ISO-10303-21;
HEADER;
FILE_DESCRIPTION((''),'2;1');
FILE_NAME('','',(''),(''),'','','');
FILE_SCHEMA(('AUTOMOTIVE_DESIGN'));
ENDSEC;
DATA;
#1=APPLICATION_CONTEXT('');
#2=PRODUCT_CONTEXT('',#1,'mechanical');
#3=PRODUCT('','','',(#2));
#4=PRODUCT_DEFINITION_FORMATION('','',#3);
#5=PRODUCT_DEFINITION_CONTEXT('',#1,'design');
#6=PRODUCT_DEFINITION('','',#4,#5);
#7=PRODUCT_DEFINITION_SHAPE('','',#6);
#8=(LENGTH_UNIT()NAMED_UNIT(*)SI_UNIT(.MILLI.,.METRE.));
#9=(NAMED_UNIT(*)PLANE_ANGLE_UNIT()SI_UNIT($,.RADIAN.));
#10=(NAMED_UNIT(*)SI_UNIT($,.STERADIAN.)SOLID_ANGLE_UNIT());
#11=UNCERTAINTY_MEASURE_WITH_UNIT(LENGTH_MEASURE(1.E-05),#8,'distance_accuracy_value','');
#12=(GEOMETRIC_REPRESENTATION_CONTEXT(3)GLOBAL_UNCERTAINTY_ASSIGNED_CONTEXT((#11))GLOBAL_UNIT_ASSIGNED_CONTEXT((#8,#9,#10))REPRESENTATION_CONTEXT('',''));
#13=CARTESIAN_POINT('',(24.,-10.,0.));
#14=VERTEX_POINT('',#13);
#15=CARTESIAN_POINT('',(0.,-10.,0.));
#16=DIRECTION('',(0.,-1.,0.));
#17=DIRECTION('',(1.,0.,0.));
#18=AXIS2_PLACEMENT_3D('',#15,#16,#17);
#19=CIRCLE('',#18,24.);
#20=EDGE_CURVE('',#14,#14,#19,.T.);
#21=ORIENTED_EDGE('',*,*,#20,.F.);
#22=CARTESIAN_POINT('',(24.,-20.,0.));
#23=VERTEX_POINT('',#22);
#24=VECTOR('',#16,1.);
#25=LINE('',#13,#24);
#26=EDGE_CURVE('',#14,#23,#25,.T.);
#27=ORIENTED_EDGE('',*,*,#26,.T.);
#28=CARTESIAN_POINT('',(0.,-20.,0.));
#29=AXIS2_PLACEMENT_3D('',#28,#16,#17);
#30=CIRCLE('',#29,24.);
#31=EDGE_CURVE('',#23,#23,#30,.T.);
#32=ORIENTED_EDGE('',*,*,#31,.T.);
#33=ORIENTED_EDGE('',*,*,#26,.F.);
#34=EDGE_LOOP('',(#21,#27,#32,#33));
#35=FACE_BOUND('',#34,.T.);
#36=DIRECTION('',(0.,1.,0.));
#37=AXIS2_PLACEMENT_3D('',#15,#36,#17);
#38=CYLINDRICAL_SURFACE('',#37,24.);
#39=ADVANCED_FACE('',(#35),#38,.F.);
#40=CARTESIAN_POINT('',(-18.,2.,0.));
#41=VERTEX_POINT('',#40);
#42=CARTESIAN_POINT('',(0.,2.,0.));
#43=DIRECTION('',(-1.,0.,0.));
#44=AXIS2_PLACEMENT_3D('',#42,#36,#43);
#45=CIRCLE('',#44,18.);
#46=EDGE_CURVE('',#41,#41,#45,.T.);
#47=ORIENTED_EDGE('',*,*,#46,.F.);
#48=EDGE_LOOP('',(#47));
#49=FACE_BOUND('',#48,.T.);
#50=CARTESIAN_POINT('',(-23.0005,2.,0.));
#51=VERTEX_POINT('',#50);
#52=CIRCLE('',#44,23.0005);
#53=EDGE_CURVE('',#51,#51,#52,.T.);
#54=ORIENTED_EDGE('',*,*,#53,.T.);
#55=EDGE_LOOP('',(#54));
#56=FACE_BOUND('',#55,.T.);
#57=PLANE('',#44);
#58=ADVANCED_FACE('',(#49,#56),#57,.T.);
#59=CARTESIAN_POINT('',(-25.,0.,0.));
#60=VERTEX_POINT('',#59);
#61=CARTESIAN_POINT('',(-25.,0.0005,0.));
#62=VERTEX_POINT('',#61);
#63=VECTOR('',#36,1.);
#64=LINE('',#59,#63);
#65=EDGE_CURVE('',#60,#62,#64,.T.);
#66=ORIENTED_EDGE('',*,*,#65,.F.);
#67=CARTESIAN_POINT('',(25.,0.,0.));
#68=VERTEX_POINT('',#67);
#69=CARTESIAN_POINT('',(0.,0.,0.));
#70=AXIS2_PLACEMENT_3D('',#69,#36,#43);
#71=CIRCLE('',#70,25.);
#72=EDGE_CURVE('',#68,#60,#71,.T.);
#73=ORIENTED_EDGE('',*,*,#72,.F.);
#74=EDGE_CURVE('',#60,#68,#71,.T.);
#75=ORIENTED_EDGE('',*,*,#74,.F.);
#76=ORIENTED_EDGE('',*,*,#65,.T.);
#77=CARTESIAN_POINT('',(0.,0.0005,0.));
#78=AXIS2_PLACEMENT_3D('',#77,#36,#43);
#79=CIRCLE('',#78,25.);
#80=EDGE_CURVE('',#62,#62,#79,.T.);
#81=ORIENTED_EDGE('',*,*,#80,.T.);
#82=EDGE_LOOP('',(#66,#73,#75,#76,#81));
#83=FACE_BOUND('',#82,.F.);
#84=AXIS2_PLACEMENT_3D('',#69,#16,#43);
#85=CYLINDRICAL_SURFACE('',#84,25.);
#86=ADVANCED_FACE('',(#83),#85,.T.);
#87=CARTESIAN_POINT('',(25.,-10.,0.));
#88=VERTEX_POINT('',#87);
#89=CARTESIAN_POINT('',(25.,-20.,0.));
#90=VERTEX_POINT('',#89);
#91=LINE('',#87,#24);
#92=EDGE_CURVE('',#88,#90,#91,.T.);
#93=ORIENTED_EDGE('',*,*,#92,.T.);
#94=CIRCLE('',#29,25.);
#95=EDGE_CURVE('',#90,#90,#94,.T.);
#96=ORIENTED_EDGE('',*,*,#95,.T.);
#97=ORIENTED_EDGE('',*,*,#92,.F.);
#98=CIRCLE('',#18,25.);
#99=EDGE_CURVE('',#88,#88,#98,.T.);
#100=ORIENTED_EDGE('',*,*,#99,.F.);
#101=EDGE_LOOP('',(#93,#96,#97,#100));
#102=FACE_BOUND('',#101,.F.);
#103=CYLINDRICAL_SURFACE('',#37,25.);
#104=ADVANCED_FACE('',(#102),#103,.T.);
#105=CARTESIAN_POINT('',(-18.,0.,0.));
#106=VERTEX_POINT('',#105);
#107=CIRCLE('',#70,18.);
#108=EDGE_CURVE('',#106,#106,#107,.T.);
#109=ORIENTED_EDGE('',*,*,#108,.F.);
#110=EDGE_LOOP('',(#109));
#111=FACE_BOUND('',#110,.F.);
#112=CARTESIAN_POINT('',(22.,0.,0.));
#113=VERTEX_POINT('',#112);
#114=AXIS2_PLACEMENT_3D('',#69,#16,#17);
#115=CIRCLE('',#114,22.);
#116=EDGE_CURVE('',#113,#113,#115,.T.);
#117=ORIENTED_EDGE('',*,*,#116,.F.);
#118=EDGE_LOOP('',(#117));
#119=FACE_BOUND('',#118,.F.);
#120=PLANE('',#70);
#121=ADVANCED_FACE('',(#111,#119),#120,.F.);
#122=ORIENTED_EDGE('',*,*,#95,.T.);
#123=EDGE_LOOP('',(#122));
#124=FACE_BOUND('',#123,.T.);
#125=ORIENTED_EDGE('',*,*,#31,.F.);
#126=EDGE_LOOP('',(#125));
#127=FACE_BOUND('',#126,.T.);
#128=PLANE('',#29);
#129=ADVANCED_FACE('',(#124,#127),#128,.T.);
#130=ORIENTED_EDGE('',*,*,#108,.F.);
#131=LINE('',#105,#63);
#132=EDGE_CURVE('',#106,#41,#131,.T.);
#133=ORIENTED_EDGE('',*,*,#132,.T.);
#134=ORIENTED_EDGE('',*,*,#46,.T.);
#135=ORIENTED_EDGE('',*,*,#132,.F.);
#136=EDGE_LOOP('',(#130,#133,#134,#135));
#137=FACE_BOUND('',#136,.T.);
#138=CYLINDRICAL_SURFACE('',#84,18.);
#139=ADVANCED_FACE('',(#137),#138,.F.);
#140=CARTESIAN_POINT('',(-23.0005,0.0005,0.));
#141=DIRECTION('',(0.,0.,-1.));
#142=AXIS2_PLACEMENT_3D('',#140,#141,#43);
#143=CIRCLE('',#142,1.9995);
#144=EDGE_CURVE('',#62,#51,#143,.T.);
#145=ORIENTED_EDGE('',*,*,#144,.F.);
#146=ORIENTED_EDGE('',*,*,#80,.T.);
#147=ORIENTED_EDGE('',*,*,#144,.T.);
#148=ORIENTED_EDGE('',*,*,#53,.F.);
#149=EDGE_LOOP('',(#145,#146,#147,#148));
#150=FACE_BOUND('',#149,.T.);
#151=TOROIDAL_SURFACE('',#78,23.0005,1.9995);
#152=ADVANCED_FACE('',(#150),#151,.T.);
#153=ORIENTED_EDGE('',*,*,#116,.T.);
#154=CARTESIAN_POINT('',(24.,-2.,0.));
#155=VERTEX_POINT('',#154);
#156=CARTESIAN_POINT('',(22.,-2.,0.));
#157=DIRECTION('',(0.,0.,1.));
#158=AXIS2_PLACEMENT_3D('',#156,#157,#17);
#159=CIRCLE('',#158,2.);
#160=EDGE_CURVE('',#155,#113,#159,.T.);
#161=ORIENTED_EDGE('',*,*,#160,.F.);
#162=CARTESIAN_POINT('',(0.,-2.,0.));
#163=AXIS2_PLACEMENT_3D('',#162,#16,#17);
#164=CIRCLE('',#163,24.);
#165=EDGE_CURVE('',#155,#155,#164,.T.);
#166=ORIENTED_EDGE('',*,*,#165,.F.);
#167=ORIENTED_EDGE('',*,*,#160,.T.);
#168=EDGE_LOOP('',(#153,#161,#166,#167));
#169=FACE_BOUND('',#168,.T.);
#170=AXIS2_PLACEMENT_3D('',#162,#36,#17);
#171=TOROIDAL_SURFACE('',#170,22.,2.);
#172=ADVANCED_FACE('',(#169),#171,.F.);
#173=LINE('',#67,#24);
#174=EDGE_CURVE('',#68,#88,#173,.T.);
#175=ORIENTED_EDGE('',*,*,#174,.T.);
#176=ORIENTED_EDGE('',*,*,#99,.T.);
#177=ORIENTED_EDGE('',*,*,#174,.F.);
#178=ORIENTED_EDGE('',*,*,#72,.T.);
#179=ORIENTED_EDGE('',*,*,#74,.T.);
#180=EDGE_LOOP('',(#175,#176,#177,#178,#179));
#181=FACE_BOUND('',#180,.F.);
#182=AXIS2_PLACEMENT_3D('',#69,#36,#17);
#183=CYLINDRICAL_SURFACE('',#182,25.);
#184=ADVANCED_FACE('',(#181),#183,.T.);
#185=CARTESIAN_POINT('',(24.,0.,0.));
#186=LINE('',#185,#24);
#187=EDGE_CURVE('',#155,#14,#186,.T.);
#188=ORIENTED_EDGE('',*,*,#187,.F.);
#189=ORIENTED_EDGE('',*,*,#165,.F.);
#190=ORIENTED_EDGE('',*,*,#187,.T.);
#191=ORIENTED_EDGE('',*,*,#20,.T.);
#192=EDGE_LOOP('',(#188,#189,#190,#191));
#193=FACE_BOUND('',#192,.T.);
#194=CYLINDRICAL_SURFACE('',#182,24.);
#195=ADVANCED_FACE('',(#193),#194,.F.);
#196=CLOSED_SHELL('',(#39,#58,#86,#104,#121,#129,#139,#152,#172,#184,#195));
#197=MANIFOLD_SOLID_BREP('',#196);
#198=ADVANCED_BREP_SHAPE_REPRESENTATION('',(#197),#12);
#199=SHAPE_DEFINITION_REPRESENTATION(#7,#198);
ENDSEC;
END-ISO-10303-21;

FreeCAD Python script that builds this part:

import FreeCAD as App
import Part
import Sketcher

V = App.Vector
Q = App.Units.Quantity


def edges_at(feature, points):
    """Names of the edges that pass closest to the given points."""
    edges = feature.Shape.Edges
    near = lambda p: min(range(len(edges)), key=lambda i: edges[i].distToShape(Part.Vertex(*p))[0])
    return sorted({f"Edge{near(p) + 1}" for p in points})

doc = App.newDocument("Part")
body = doc.addObject("PartDesign::Body", "Body")

sketch1 = doc.addObject("Sketcher::SketchObject", "Sketch")
body.addObject(sketch1)
sketch1.AttachmentSupport = (doc.XZ_Plane, [""])
sketch1.MapMode = "FlatFace"
sketch1.addGeometry(Part.Circle(V(0, 0, 0), V(0, 0, 1), 25), False)
sketch1.addGeometry(Part.Circle(V(0, 0, 0), V(0, 0, 1), 18), False)
sketch1.addConstraint(Sketcher.Constraint("Coincident", 0, 3, -1, 1))
sketch1.addConstraint(Sketcher.Constraint("Coincident", 1, 3, -1, 1))
sketch1.addConstraint(Sketcher.Constraint("Diameter", 0, Q("50 mm")))
sketch1.addConstraint(Sketcher.Constraint("Diameter", 1, Q("36 mm")))
pad1 = doc.addObject("PartDesign::Pad", "Pad")
body.addObject(pad1)
pad1.Profile = sketch1
pad1.Length = 2
pad1.Reversed = True

sketch2 = doc.addObject("Sketcher::SketchObject", "Sketch001")
body.addObject(sketch2)
sketch2.AttachmentSupport = (doc.XZ_Plane, [""])
sketch2.MapMode = "FlatFace"
sketch2.addGeometry(Part.Circle(V(0, 0, 0), V(0, 0, 1), 25), False)
sketch2.addGeometry(Part.Circle(V(0, 0, 0), V(0, 0, 1), 24), False)
sketch2.addConstraint(Sketcher.Constraint("Coincident", 0, 3, -1, 1))
sketch2.addConstraint(Sketcher.Constraint("Coincident", 1, 3, -1, 1))
sketch2.addConstraint(Sketcher.Constraint("Diameter", 1, Q("48 mm")))
sketch2.addConstraint(Sketcher.Constraint("Diameter", 0, Q("50 mm")))
pad2 = doc.addObject("PartDesign::Pad", "Pad001")
body.addObject(pad2)
pad2.Profile = sketch2
pad2.Length = 10
doc.recompute()

fillet = doc.addObject("PartDesign::Fillet", "Fillet")
body.addObject(fillet)
fillet.Base = (pad2, edges_at(pad2, [(-24, 0, 0)]))
fillet.Radius = 2
doc.recompute()

fillet2 = doc.addObject("PartDesign::Fillet", "Fillet001")
body.addObject(fillet2)
fillet2.Base = (fillet, edges_at(fillet, [(25, 2, 0)]))
fillet2.Radius = 2

sketch3 = doc.addObject("Sketcher::SketchObject", "Sketch002")
body.addObject(sketch3)
sketch3.AttachmentSupport = (doc.XZ_Plane, [""])
sketch3.MapMode = "FlatFace"
sketch3.AttachmentOffset = App.Placement(V(0, 0, 10), App.Rotation())
sketch3.addGeometry(Part.Circle(V(0, 0, 0), V(0, 0, 1), 25), False)
sketch3.addGeometry(Part.Circle(V(0, 0, 0), V(0, 0, 1), 24), False)
sketch3.addConstraint(Sketcher.Constraint("Coincident", 0, 3, -1, 1))
sketch3.addConstraint(Sketcher.Constraint("Coincident", 1, 3, -1, 1))
sketch3.addConstraint(Sketcher.Constraint("Diameter", 0, Q("50 mm")))
sketch3.addConstraint(Sketcher.Constraint("Diameter", 1, Q("48 mm")))
pad3 = doc.addObject("PartDesign::Pad", "Pad002")
body.addObject(pad3)
pad3.Profile = sketch3
pad3.Length = 10

doc.recompute()
